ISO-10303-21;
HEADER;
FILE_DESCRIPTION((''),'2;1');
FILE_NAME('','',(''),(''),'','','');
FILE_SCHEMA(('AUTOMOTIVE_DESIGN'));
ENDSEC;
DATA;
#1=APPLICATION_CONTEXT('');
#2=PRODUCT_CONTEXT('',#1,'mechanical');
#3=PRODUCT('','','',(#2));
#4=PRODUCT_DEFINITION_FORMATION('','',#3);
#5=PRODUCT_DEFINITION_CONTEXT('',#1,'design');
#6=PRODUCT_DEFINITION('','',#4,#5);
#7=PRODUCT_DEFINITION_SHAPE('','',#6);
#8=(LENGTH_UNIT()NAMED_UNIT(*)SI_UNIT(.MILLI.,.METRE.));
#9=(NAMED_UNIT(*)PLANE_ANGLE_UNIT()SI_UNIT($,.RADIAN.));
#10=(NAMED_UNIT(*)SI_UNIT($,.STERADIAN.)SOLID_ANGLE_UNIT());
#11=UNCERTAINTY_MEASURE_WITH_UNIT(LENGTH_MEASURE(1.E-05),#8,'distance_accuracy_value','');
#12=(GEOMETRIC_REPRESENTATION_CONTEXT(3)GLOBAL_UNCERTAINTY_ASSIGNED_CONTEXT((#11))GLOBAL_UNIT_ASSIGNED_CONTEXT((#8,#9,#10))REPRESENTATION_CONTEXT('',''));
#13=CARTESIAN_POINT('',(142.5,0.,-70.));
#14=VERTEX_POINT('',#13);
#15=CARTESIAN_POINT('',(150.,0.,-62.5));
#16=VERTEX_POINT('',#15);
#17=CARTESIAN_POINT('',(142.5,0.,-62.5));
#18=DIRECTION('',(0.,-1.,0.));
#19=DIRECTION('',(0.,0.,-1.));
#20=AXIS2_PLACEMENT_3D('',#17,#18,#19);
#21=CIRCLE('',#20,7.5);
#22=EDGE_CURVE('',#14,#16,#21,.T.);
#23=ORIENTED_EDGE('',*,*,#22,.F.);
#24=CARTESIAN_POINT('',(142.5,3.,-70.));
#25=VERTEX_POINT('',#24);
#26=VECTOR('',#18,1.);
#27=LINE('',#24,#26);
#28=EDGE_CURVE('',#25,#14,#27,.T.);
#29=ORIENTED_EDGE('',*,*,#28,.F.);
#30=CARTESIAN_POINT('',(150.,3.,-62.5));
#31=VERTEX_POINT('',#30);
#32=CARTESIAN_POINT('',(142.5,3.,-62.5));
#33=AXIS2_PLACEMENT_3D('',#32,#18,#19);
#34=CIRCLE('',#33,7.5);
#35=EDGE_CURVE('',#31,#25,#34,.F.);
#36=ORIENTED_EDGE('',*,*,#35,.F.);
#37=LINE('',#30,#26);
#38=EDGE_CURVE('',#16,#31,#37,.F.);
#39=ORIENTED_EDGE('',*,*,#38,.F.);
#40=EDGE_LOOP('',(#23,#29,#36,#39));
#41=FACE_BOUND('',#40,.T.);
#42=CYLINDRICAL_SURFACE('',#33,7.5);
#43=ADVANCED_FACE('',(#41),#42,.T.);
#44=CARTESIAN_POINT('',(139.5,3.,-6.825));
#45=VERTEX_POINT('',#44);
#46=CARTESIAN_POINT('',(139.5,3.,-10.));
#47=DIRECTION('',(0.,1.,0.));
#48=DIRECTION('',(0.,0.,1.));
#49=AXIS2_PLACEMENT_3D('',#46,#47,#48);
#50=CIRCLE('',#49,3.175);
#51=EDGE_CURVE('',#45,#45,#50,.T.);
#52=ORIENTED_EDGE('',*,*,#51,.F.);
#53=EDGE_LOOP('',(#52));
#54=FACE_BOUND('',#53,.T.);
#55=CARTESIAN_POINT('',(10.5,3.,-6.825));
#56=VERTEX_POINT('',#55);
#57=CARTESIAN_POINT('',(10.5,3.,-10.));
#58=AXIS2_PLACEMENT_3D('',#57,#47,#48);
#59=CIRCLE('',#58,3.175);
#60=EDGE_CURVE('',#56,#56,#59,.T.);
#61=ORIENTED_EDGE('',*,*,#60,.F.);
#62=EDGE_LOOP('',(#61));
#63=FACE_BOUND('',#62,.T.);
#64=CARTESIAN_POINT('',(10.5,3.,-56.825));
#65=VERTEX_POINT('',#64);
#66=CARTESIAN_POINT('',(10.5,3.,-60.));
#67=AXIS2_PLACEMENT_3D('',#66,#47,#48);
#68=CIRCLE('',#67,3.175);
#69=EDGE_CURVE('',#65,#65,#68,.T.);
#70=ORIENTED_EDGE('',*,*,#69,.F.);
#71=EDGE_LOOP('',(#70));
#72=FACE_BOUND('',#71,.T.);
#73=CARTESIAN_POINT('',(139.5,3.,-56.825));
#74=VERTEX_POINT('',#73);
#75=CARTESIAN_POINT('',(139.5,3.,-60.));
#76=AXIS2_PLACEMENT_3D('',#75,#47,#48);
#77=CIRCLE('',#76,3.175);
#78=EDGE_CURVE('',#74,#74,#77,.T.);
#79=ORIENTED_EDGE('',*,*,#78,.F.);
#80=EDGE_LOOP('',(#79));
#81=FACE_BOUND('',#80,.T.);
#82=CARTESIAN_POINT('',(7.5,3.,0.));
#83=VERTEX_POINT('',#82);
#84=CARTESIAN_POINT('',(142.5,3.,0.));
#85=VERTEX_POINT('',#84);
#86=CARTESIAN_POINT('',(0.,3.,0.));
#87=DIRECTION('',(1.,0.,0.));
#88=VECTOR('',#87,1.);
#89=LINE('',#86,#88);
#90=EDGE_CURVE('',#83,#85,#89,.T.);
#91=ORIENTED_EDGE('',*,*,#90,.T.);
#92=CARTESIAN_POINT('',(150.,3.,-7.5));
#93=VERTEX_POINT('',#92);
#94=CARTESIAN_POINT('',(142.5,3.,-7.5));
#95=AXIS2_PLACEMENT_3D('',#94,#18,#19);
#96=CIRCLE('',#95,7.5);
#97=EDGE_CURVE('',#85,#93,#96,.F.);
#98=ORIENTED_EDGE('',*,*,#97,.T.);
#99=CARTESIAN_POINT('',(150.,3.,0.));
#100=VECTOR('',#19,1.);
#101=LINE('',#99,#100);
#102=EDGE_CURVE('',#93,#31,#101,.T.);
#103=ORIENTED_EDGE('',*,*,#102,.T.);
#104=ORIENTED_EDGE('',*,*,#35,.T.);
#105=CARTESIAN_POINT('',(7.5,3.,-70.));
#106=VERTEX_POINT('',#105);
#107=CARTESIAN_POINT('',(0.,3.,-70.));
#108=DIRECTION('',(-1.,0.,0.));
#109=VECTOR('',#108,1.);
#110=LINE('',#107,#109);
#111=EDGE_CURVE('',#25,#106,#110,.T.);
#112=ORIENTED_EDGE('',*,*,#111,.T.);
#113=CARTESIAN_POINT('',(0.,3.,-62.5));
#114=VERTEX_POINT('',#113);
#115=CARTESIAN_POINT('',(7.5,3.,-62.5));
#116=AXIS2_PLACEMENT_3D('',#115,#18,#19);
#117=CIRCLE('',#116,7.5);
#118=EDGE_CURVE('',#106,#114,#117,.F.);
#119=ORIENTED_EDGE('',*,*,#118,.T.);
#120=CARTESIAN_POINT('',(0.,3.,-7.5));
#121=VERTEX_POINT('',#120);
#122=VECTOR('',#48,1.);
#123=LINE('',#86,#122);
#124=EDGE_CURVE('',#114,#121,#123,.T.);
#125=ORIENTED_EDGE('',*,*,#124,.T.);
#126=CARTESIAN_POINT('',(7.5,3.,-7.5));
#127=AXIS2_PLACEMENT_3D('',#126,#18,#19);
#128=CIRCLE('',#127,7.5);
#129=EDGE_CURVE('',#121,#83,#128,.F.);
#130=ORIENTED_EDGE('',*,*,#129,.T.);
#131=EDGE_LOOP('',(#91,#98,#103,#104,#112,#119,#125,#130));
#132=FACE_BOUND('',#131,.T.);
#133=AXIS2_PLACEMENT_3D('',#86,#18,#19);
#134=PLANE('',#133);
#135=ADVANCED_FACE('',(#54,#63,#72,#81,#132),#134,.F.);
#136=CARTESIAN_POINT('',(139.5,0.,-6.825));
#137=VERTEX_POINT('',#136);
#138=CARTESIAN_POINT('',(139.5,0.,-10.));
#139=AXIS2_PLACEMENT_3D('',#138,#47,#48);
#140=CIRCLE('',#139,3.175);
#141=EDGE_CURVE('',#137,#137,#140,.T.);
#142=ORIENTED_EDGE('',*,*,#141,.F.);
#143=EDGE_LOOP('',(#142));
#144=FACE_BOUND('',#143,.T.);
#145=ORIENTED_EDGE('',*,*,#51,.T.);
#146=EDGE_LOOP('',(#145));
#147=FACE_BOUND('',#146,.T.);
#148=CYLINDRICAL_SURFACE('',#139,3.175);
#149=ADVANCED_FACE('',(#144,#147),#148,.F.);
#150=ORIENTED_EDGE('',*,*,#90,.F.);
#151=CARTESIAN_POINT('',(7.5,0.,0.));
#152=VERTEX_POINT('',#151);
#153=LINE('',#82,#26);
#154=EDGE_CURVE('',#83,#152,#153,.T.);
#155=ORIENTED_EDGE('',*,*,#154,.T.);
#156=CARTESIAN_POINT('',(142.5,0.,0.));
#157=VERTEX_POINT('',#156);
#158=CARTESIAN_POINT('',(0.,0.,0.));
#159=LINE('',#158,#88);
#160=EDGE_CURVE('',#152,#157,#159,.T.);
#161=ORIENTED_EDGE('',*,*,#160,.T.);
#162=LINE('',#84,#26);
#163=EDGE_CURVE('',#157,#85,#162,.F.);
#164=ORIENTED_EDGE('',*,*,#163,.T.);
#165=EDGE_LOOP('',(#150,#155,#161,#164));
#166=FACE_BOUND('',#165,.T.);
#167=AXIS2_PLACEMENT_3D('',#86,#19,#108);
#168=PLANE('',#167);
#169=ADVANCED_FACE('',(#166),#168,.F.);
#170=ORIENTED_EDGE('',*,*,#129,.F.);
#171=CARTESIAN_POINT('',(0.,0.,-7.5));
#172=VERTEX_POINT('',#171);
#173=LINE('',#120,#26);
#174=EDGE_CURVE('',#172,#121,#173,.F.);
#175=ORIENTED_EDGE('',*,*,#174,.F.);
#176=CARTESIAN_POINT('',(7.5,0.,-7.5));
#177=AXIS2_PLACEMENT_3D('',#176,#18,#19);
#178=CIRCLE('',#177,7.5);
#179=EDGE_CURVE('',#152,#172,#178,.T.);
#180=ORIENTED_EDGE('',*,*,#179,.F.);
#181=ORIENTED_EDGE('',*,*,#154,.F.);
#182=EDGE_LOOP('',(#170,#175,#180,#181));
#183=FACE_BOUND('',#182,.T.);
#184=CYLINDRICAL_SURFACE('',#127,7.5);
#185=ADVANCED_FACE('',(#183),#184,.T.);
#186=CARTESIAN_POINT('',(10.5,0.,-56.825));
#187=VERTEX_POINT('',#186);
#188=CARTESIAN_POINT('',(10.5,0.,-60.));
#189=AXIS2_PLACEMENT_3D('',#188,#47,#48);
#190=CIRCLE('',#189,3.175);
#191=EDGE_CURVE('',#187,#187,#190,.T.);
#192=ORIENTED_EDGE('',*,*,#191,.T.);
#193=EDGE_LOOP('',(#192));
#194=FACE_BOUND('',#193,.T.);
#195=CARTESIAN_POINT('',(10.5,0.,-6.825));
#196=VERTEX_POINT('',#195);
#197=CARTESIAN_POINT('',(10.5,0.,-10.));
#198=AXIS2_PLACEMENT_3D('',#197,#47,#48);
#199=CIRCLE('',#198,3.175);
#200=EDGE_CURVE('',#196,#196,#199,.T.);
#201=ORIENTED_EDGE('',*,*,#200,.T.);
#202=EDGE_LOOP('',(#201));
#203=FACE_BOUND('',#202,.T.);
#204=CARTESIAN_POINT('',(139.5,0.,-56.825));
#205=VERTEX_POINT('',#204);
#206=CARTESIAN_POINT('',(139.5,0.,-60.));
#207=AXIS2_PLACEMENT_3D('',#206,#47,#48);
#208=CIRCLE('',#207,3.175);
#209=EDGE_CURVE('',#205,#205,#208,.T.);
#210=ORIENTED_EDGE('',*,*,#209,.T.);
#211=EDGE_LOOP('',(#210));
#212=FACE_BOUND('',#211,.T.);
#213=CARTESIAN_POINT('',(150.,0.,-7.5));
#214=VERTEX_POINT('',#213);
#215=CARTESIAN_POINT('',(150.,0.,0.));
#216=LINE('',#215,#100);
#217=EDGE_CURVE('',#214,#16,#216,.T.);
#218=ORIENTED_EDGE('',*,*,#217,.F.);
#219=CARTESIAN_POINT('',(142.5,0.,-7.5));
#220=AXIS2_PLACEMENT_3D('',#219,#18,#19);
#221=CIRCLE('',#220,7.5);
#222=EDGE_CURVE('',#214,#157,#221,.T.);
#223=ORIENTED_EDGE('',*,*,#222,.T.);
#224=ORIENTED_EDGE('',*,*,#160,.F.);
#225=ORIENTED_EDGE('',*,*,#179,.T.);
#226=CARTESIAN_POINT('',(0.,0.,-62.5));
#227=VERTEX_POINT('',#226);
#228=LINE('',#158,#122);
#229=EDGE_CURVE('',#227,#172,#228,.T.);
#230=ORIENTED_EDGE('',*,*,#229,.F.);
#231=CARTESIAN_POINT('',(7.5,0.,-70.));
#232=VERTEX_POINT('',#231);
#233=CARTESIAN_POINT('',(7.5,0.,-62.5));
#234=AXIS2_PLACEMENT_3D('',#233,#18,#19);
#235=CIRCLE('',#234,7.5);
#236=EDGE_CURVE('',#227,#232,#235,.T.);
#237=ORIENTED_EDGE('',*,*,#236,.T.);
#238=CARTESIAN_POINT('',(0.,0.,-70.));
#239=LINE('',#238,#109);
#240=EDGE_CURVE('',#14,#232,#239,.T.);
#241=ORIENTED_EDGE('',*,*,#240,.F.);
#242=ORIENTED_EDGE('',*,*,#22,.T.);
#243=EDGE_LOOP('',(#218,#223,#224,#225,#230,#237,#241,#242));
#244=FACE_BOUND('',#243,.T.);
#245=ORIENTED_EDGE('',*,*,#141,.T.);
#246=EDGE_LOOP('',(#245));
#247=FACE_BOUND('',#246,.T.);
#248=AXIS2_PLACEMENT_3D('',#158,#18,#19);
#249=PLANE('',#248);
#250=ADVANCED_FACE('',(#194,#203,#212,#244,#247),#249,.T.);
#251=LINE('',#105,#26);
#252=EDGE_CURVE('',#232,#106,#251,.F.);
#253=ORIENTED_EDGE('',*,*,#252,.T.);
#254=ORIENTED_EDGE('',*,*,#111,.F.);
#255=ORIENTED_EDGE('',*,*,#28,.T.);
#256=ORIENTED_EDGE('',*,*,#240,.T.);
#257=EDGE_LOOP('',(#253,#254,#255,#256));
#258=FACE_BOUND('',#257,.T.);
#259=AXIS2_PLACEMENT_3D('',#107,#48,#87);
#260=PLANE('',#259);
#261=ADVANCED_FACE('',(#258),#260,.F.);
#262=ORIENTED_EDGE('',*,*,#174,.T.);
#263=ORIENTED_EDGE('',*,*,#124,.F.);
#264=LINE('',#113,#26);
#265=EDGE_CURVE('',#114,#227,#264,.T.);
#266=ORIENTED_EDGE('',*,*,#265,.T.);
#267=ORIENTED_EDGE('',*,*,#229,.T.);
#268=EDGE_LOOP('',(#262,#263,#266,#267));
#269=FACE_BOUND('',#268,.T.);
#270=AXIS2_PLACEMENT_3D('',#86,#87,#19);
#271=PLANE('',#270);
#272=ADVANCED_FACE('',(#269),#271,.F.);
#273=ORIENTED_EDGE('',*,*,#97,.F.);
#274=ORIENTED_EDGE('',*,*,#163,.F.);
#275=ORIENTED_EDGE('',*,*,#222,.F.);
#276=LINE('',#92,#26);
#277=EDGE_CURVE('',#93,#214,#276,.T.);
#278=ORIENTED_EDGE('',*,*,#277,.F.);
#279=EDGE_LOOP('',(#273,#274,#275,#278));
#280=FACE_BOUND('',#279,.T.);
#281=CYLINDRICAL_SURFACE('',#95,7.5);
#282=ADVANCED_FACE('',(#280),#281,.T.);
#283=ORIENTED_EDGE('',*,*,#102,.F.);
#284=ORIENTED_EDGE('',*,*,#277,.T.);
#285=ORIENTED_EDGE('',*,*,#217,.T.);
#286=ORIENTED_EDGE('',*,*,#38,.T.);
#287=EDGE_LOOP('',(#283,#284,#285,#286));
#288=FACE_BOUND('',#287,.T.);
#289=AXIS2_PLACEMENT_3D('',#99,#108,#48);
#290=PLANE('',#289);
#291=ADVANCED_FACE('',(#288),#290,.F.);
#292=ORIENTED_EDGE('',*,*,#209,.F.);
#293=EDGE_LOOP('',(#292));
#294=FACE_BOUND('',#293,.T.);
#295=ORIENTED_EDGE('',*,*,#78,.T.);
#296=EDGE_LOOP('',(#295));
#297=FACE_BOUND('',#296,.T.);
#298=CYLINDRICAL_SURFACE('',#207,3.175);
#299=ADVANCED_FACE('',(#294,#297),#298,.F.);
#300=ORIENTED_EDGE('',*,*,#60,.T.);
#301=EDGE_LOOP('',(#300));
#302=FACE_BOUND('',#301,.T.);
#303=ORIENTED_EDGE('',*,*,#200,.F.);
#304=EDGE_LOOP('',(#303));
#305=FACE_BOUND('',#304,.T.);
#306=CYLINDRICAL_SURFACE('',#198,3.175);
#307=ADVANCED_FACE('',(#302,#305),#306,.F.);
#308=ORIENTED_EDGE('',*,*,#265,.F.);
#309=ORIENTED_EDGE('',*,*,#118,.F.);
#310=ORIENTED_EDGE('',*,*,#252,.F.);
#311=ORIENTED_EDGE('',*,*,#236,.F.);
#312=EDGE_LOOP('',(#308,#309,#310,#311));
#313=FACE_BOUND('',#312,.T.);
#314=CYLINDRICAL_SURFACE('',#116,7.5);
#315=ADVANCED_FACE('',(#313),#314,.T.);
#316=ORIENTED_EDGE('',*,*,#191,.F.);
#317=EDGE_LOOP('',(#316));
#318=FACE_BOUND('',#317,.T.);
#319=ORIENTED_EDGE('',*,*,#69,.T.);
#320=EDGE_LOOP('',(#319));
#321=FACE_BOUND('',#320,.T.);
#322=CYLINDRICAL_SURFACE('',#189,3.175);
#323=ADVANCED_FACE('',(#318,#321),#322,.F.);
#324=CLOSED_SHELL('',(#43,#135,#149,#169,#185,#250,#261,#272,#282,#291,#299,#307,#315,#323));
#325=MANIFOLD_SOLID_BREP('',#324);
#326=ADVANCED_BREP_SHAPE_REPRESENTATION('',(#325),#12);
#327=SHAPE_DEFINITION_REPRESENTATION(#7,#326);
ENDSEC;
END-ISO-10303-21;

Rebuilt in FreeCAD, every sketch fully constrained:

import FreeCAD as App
import Part
import Sketcher
from FreeCAD import Vector
Q = App.Units.Quantity


def edges_at(feature, points):
    """Names of the edges that pass closest to the given points."""
    edges = feature.Shape.Edges
    near = lambda p: min(range(len(edges)), key=lambda i: edges[i].distToShape(Part.Vertex(*p))[0])
    return sorted({f"Edge{near(p) + 1}" for p in points})


def add_polygon(sketch, points):
    """Adds a closed chain of lines whose ends are joined by coincident constraints."""
    first, n = sketch.GeometryCount, len(points)
    for a, b in zip(points, points[1:] + points[:1]):
        sketch.addGeometry(Part.LineSegment(App.Vector(*a, 0), App.Vector(*b, 0)), False)
    for i in range(n):
        sketch.addConstraint(Sketcher.Constraint("Coincident", first + i, 2, first + (i + 1) % n, 1))

doc = App.newDocument("Part")
body = doc.addObject("PartDesign::Body", "Body")

sketch1 = doc.addObject("Sketcher::SketchObject", "Sketch")
body.addObject(sketch1)
sketch1.AttachmentSupport = (doc.XZ_Plane, [""])
sketch1.MapMode = "FlatFace"
add_polygon(sketch1, [(0, -70), (0, 0), (150, 0), (150, -70)])
sketch1.addConstraint([
    Sketcher.Constraint("Vertical", 0),
    Sketcher.Constraint("Horizontal", 1),
    Sketcher.Constraint("Vertical", 2),
    Sketcher.Constraint("Horizontal", 3),
    Sketcher.Constraint("Coincident", 0, 2, -1, 1),
    Sketcher.Constraint("DistanceX", 1, 1, 1, 2, Q("150 mm")),
    Sketcher.Constraint("DistanceY", 0, 1, 0, 2, Q("70 mm")),
])
pad1 = doc.addObject("PartDesign::Pad", "Pad")
body.addObject(pad1)
pad1.Profile = sketch1
pad1.Length = 3
pad1.Reversed = True

sketch2 = doc.addObject("Sketcher::SketchObject", "Sketch001")
body.addObject(sketch2)
sketch2.AttachmentSupport = (doc.XZ_Plane, [""])
sketch2.MapMode = "FlatFace"
sketch2.AttachmentOffset = App.Placement(Vector(0, 0, -3), App.Rotation())
sketch2.addGeometry([
    Part.Circle(Vector(10.5, -60, 0), Vector(0, 0, 1), 3.2),
    Part.Circle(Vector(139.5, -60, 0), Vector(0, 0, 1), 3.2),
    Part.Circle(Vector(139.5, -10, 0), Vector(0, 0, 1), 3.2),
    Part.Circle(Vector(10.5, -10, 0), Vector(0, 0, 1), 3.2),
], False)
sketch2.addConstraint([
    Sketcher.Constraint("Equal", 0, 1),
    Sketcher.Constraint("Equal", 1, 2),
    Sketcher.Constraint("Equal", 2, 3),
    Sketcher.Constraint("Horizontal", 0, 3, 1, 3),
    Sketcher.Constraint("Horizontal", 2, 3, 3, 3),
    Sketcher.Constraint("Vertical", 1, 3, 2, 3),
    Sketcher.Constraint("Vertical", 0, 3, 3, 3),
    Sketcher.Constraint("Diameter", 0, Q("6.35 mm")),
    Sketcher.Constraint("DistanceY", 0, 3, -1, 1, Q("60 mm")),
    Sketcher.Constraint("DistanceY", 2, 3, -1, 1, Q("10 mm")),
    Sketcher.Constraint("DistanceX", 0, 3, 1, 3, Q("129 mm")),
    Sketcher.Constraint("DistanceX", -1, 1, 0, 3, Q("10.5 mm")),
])
pocket1 = doc.addObject("PartDesign::Pocket", "Pocket")
body.addObject(pocket1)
pocket1.Profile = sketch2
pocket1.Length = 3
pocket1.Reversed = True
doc.recompute()

fillet = doc.addObject("PartDesign::Fillet", "Fillet")
body.addObject(fillet)
fillet.Base = (pocket1, edges_at(pocket1, [
    (0, 1.5, -70),
    (150, 1.5, -70),
    (150, 1.5, 0),
    (0, 1.5, 0),
]))
fillet.Radius = 7.5

doc.recompute()
